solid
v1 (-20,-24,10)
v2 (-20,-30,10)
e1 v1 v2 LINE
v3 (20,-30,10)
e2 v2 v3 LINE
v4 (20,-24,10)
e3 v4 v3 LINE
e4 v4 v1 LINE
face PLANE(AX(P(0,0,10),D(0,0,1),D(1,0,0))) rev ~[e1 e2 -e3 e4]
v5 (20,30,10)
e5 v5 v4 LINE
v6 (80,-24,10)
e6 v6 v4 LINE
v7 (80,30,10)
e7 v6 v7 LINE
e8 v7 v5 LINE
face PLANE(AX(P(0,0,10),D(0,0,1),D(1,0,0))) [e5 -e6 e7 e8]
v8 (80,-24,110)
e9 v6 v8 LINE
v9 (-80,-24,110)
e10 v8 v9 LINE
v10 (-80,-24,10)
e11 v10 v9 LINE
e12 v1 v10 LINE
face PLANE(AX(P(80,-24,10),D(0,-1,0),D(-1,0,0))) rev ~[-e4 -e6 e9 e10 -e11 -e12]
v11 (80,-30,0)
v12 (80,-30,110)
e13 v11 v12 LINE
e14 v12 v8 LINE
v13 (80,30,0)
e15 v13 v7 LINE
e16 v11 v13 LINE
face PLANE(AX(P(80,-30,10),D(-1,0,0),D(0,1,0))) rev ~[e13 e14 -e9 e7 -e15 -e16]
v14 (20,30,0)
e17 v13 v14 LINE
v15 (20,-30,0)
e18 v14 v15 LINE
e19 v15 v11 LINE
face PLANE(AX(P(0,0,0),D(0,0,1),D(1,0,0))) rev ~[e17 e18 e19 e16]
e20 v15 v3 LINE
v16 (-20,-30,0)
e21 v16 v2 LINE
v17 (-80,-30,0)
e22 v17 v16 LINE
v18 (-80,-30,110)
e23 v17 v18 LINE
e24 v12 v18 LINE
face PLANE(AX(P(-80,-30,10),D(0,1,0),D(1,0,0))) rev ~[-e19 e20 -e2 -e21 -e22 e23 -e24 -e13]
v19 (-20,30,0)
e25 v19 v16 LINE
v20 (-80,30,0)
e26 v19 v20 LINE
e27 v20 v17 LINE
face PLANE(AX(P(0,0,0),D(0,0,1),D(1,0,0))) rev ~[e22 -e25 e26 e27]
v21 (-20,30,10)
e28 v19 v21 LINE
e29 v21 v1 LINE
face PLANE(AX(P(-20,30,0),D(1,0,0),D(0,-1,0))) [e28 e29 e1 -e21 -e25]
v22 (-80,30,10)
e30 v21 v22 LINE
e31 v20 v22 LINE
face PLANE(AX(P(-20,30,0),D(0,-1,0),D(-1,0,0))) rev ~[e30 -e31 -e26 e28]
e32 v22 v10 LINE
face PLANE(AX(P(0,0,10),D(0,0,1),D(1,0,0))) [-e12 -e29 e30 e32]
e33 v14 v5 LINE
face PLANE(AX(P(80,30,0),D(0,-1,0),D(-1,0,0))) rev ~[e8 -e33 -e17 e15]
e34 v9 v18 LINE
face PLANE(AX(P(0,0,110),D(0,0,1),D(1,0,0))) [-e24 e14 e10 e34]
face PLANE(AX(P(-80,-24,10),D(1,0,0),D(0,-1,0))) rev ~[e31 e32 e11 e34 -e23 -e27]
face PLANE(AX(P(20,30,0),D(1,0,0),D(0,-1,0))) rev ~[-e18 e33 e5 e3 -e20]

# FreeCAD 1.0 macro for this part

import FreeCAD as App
import Part
import Sketcher
Q = App.Units.Quantity


def add_polygon(sketch, points):
    """Adds a closed chain of lines whose ends are joined by coincident constraints."""
    first, n = sketch.GeometryCount, len(points)
    for a, b in zip(points, points[1:] + points[:1]):
        sketch.addGeometry(Part.LineSegment(App.Vector(*a, 0), App.Vector(*b, 0)), False)
    for i in range(n):
        sketch.addConstraint(Sketcher.Constraint("Coincident", first + i, 2, first + (i + 1) % n, 1))

doc = App.newDocument("Part")
body = doc.addObject("PartDesign::Body", "Body")
body.AllowCompound = True

# Sketch on XY plane
sketch1 = doc.addObject("Sketcher::SketchObject", "Sketch")
body.addObject(sketch1)
sketch1.AttachmentSupport = (doc.XY_Plane, [""])
sketch1.MapMode = "FlatFace"
add_polygon(sketch1, [(80, -30), (80, 30), (20, 30), (20, -30)])  # lines 0-3
add_polygon(sketch1, [(-20, -30), (-20, 30), (-80, 30), (-80, -30)])  # lines 4-7
sketch1.addConstraint([
    Sketcher.Constraint("Vertical", 0),
    Sketcher.Constraint("Horizontal", 1),
    Sketcher.Constraint("Vertical", 2),
    Sketcher.Constraint("Horizontal", 3),
    Sketcher.Constraint("Vertical", 4),
    Sketcher.Constraint("Horizontal", 5),
    Sketcher.Constraint("Vertical", 6),
    Sketcher.Constraint("Horizontal", 7),
    Sketcher.Constraint("Symmetric", 2, 2, 4, 2, -1, 1),
    Sketcher.Constraint("Symmetric", 0, 2, 6, 2, -1, 1),
    Sketcher.Constraint("Horizontal", 1, 2, 4, 2),
    Sketcher.Constraint("Equal", 7, 0),
    Sketcher.Constraint("DistanceX", 1, 2, 1, 1, Q("60 mm")),
    Sketcher.Constraint("DistanceX", 4, 2, 1, 2, Q("40 mm")),
])
pad1 = doc.addObject("PartDesign::Pad", "Pad")
body.addObject(pad1)
pad1.Profile = sketch1
pad1.Length = 10

# Sketch on XY plane
sketch2 = doc.addObject("Sketcher::SketchObject", "Sketch001")
body.addObject(sketch2)
sketch2.AttachmentSupport = (doc.XY_Plane, [""])
sketch2.MapMode = "FlatFace"
sketch2.AttachmentOffset = App.Placement(App.Vector(0, 0, 10), App.Rotation())
add_polygon(sketch2, [(-80, -24), (-80, -30), (80, -30), (80, -24)])  # lines 0-3
sketch2.addConstraint([
    Sketcher.Constraint("Vertical", 0),
    Sketcher.Constraint("Horizontal", 1),
    Sketcher.Constraint("Vertical", 2),
    Sketcher.Constraint("Horizontal", 3),
    Sketcher.Constraint("DistanceY", 0, 2, 0, 1, Q("6 mm")),
    Sketcher.Constraint("DistanceX", 1, 1, 1, 2, Q("160 mm")),
    Sketcher.Constraint("DistanceX", 0, 2, -1, 1, Q("80 mm")),
    Sketcher.Constraint("DistanceY", 0, 2, -1, 1, Q("30 mm")),
])
pad2 = doc.addObject("PartDesign::Pad", "Pad001")
body.addObject(pad2)
pad2.Profile = sketch2
pad2.Length = 100

doc.recompute()
